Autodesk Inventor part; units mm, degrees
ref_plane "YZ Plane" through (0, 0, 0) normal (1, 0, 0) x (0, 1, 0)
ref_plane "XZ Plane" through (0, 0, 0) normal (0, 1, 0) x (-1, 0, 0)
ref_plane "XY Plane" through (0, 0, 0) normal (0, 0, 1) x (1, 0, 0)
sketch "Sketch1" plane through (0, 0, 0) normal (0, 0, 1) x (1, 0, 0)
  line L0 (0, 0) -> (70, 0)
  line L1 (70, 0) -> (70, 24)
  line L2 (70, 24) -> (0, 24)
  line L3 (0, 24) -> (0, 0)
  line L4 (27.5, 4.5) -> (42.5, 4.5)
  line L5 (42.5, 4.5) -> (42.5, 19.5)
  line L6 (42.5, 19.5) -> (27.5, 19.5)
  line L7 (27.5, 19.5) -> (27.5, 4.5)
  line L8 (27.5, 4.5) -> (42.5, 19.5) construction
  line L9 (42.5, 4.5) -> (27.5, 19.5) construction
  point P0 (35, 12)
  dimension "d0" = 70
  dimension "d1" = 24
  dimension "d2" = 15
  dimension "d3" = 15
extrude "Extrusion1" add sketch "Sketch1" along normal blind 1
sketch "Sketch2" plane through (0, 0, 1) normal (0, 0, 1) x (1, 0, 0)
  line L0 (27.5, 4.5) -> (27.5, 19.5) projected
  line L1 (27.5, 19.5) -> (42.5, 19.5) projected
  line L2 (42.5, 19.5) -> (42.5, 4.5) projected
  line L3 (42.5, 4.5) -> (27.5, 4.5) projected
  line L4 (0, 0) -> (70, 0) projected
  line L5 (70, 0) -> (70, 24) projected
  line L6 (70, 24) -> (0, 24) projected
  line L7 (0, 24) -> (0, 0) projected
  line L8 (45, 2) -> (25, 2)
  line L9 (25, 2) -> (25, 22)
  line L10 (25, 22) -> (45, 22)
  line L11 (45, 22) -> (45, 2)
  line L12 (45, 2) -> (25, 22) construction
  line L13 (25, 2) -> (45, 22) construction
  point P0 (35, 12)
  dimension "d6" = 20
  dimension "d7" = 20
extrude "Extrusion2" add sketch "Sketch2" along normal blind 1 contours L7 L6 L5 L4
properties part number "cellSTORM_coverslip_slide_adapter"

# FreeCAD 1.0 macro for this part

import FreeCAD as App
import Part
import Sketcher
from FreeCAD import Vector


def add_polygon(sketch, points):
    """Adds a closed chain of lines whose ends are joined by coincident constraints."""
    first, n = sketch.GeometryCount, len(points)
    for a, b in zip(points, points[1:] + points[:1]):
        sketch.addGeometry(Part.LineSegment(App.Vector(*a, 0), App.Vector(*b, 0)), False)
    for i in range(n):
        sketch.addConstraint(Sketcher.Constraint("Coincident", first + i, 2, first + (i + 1) % n, 1))

doc = App.newDocument("Part")
body = doc.addObject("PartDesign::Body", "Body")

sketch1 = body.newObject("Sketcher::SketchObject", "Sketch")
sketch1.AttachmentSupport = (doc.getObject("XY_Plane"), [""])
sketch1.MapMode = "FlatFace"
add_polygon(sketch1, [(0, 24), (0, 0), (70, 0), (70, 24)])
add_polygon(sketch1, [(42, 4), (28, 4), (28, 20), (42, 20)])
sketch1.addConstraint([
    Sketcher.Constraint("Vertical", 0),
    Sketcher.Constraint("Horizontal", 1),
    Sketcher.Constraint("Vertical", 2),
    Sketcher.Constraint("Horizontal", 3),
    Sketcher.Constraint("Horizontal", 4),
    Sketcher.Constraint("Vertical", 5),
    Sketcher.Constraint("Horizontal", 6),
    Sketcher.Constraint("Vertical", 7),
    Sketcher.Constraint("Coincident", 0, 2, -1, 1),
    Sketcher.Constraint("Equal", 6, 5),
    Sketcher.Constraint("DistanceX", 1, 1, 1, 2, 70.0),
    Sketcher.Constraint("DistanceX", 4, 2, 4, 1, 15.0),
    Sketcher.Constraint("DistanceY", 0, 2, 0, 1, 24.0),
    Sketcher.Constraint("DistanceX", -1, 1, 4, 2, 27.5),
    Sketcher.Constraint("DistanceY", -1, 1, 4, 2, 4.5),
])
pad1 = body.newObject("PartDesign::Pad", "Pad")
pad1.Profile = sketch1
pad1.Length = 1

sketch2 = body.newObject("Sketcher::SketchObject", "Sketch001")
sketch2.AttachmentSupport = (doc.getObject("XY_Plane"), [""])
sketch2.MapMode = "FlatFace"
sketch2.AttachmentOffset = App.Placement(Vector(0, 0, 1), App.Rotation())
add_polygon(sketch2, [(0, 24), (0, 0), (70, 0), (70, 24)])
add_polygon(sketch2, [(45, 22), (45, 2), (25, 2), (25, 22)])
sketch2.addConstraint([
    Sketcher.Constraint("Vertical", 0),
    Sketcher.Constraint("Horizontal", 1),
    Sketcher.Constraint("Vertical", 2),
    Sketcher.Constraint("Horizontal", 3),
    Sketcher.Constraint("Vertical", 4),
    Sketcher.Constraint("Horizontal", 5),
    Sketcher.Constraint("Vertical", 6),
    Sketcher.Constraint("Horizontal", 7),
    Sketcher.Constraint("Coincident", 0, 2, -1, 1),
    Sketcher.Constraint("Equal", 7, 4),
    Sketcher.Constraint("DistanceX", 5, 2, 5, 1, 20.0),
    Sketcher.Constraint("DistanceX", 1, 1, 1, 2, 70.0),
    Sketcher.Constraint("DistanceY", 0, 2, 0, 1, 24.0),
    Sketcher.Constraint("DistanceX", -1, 1, 4, 2, 45.0),
    Sketcher.Constraint("DistanceY", -1, 1, 4, 2, 2.0),
])
pad2 = body.newObject("PartDesign::Pad", "Pad001")
pad2.Profile = sketch2
pad2.Length = 1

doc.recompute()
